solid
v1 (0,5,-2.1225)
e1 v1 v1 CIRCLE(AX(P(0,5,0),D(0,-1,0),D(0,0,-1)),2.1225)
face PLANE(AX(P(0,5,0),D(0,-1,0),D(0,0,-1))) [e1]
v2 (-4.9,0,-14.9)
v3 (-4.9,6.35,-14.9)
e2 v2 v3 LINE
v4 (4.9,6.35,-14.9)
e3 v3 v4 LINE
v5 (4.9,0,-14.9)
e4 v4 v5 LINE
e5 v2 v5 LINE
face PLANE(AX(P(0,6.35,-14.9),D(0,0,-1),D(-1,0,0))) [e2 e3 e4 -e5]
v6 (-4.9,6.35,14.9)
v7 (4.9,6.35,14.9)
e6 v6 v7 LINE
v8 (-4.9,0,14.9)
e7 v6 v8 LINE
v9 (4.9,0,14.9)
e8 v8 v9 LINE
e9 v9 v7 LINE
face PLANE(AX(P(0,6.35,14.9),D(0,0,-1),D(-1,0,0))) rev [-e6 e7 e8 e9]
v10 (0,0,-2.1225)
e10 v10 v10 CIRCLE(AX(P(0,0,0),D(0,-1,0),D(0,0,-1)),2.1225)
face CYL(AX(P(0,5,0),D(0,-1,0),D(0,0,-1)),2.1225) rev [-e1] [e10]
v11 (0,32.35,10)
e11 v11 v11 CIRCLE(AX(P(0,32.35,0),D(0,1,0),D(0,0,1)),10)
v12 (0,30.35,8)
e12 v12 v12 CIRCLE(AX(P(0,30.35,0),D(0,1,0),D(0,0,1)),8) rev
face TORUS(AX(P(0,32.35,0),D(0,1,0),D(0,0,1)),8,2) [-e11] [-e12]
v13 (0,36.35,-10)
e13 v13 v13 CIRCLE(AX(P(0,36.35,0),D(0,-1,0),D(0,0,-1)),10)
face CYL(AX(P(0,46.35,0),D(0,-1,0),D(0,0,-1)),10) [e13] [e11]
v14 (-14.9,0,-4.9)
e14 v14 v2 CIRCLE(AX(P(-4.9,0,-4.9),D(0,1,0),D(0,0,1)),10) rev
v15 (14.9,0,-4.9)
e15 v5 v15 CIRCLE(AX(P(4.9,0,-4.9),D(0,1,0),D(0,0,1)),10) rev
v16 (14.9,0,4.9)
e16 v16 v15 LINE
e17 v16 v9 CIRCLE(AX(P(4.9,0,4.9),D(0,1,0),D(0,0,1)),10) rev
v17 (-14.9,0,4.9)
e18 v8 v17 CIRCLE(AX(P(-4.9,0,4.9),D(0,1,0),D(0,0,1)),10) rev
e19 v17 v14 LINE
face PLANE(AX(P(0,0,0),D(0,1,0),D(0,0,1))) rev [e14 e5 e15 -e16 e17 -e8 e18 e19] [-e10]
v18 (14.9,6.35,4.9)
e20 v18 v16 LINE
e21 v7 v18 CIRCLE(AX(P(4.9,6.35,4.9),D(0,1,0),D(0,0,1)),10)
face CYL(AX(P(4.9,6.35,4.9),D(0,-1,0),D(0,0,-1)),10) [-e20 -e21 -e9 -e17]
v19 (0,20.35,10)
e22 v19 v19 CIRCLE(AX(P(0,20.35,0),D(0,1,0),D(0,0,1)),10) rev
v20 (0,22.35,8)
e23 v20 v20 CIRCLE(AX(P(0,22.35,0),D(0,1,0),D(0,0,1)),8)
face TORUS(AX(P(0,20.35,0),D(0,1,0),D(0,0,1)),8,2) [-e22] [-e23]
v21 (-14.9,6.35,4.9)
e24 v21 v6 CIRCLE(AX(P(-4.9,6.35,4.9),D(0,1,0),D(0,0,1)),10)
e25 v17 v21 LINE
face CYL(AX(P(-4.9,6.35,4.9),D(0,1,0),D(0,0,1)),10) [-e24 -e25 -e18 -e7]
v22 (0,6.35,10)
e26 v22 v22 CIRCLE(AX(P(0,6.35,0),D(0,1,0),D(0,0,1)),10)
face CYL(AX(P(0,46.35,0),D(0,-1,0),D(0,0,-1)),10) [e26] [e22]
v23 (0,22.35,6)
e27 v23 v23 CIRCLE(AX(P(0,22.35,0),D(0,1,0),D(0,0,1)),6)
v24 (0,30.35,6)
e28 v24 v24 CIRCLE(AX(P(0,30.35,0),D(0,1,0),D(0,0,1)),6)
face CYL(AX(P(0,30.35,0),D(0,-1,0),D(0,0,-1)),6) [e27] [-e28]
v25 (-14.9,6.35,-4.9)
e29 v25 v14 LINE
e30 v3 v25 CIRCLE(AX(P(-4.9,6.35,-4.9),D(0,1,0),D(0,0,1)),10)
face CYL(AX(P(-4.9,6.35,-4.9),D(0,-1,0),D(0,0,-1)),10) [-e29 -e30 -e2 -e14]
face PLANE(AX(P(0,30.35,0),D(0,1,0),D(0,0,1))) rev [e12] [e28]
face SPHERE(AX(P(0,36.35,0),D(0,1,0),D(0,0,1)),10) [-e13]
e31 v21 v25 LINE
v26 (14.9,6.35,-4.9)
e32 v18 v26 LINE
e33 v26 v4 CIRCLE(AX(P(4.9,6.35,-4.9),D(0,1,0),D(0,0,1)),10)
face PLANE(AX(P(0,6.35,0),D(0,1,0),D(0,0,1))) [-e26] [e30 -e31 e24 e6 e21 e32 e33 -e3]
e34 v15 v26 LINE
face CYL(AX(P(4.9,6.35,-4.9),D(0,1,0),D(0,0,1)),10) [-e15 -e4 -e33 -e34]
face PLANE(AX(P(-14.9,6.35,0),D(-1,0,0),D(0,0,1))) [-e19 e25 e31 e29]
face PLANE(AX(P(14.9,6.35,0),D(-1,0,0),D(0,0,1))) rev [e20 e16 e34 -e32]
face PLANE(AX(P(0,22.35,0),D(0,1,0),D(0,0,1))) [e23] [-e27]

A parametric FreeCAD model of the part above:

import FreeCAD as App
import Part
import Sketcher
from FreeCAD import Vector


def edges_at(feature, points):
    """Names of the edges that pass closest to the given points."""
    edges = feature.Shape.Edges
    near = lambda p: min(range(len(edges)), key=lambda i: edges[i].distToShape(Part.Vertex(*p))[0])
    return sorted({f"Edge{near(p) + 1}" for p in points})

doc = App.newDocument("Part")
params = doc.addObject("Spreadsheet::Sheet", "Params")
for row, (alias, value) in enumerate([
    ("sketch1_width", "29.8 mm"),
    ("pad1_length", "6.35 mm"),
    ("fillet_radius", "10 mm"),
    ("sketch2_diameter", "20 mm"),
    ("pad2_length", "40 mm"),
    ("fillet2_radius", "10 mm"),
    ("sketch3_diameter", "20 mm"),
    ("sketch3_diameter2", "12 mm"),
    ("pocket1_length", "4 mm"),
    ("pocket1_length2", "4 mm"),
    ("fillet3_radius", "2 mm"),
    ("pocket2_length", "5 mm"),
], start=1):
    params.set(f"A{row}", alias)
    params.set(f"B{row}", "=" + value)
    params.setAlias(f"B{row}", alias)

body = doc.addObject("PartDesign::Body", "Body")

# Sketch on XZ plane
sketch1 = body.newObject("Sketcher::SketchObject", "Sketch")
sketch1.AttachmentSupport = (doc.getObject("XZ_Plane"), [""])
sketch1.MapMode = "FlatFace"
sketch1.addGeometry([
    Part.LineSegment(Vector(-15, -15, 0), Vector(-15, 15, 0)),
    Part.LineSegment(Vector(-15, 15, 0), Vector(15, 15, 0)),
    Part.LineSegment(Vector(15, 15, 0), Vector(15, -15, 0)),
    Part.LineSegment(Vector(15, -15, 0), Vector(-15, -15, 0)),
], False)
sketch1.addConstraint([
    Sketcher.Constraint("Coincident", 0, 2, 1, 1),
    Sketcher.Constraint("Coincident", 1, 2, 2, 1),
    Sketcher.Constraint("Coincident", 2, 2, 3, 1),
    Sketcher.Constraint("Coincident", 3, 2, 0, 1),
    Sketcher.Constraint("Vertical", 0),
    Sketcher.Constraint("Horizontal", 1),
    Sketcher.Constraint("Vertical", 2),
    Sketcher.Constraint("Horizontal", 3),
    Sketcher.Constraint("Symmetric", 0, 2, 2, 2, -1, 1),
    Sketcher.Constraint("Equal", 3, 0),
    Sketcher.Constraint("DistanceX", 1, 1, 1, 2, 29.8),
])
sketch1.setExpression("Constraints[10]", "Params.sketch1_width")
pad1 = body.newObject("PartDesign::Pad", "Pad")
pad1.Profile = sketch1
pad1.setExpression("Length", "Params.pad1_length")
pad1.Reversed = True
doc.recompute()

fillet = body.newObject("PartDesign::Fillet", "Fillet")
fillet.Base = (pad1, edges_at(pad1, [
    (-14.9, 3.175, -14.9),
    (14.9, 3.175, -14.9),
    (14.9, 3.175, 14.9),
    (-14.9, 3.175, 14.9),
]))
fillet.setExpression("Radius", "Params.fillet_radius")

# Sketch on XZ plane
sketch2 = body.newObject("Sketcher::SketchObject", "Sketch001")
sketch2.AttachmentSupport = (doc.getObject("XZ_Plane"), [""])
sketch2.MapMode = "FlatFace"
sketch2.AttachmentOffset = App.Placement(Vector(0, 0, -6.35), App.Rotation())
sketch2.addGeometry(Part.Circle(Vector(0, 0, 0), Vector(0, 0, 1), 10), False)
sketch2.addConstraint([
    Sketcher.Constraint("Coincident", 0, 3, -1, 1),
    Sketcher.Constraint("Diameter", 0, 20.0),
])
sketch2.setExpression("Constraints[1]", "Params.sketch2_diameter")
pad2 = body.newObject("PartDesign::Pad", "Pad001")
pad2.Profile = sketch2
pad2.setExpression("Length", "Params.pad2_length")
pad2.Reversed = True
doc.recompute()

fillet2 = body.newObject("PartDesign::Fillet", "Fillet001")
fillet2.Base = (pad2, edges_at(pad2, [(0, 46.35, -10)]))
fillet2.setExpression("Radius", "Params.fillet2_radius")

# Sketch on XZ plane
sketch3 = body.newObject("Sketcher::SketchObject", "Sketch002")
sketch3.AttachmentSupport = (doc.getObject("XZ_Plane"), [""])
sketch3.MapMode = "FlatFace"
sketch3.AttachmentOffset = App.Placement(Vector(0, 0, -26.35), App.Rotation())
sketch3.addGeometry([
    Part.Circle(Vector(0, 0, 0), Vector(0, 0, 1), 10),
    Part.Circle(Vector(0, 0, 0), Vector(0, 0, 1), 6),
], False)
sketch3.addConstraint([
    Sketcher.Constraint("Coincident", 0, 3, -1, 1),
    Sketcher.Constraint("Coincident", 1, 3, -1, 1),
    Sketcher.Constraint("Diameter", 0, 20.0),
    Sketcher.Constraint("Diameter", 1, 12.0),
])
sketch3.setExpression("Constraints[2]", "Params.sketch3_diameter")
sketch3.setExpression("Constraints[3]", "Params.sketch3_diameter2")
pocket1 = body.newObject("PartDesign::Pocket", "Pocket")
pocket1.Profile = sketch3
pocket1.Type = "TwoLengths"
pocket1.setExpression("Length", "Params.pocket1_length")
pocket1.setExpression("Length2", "Params.pocket1_length2")
doc.recompute()

fillet3 = body.newObject("PartDesign::Fillet", "Fillet002")
fillet3.Base = (pocket1, edges_at(pocket1, [(0, 30.35, -10), (0, 22.35, -10)]))
fillet3.setExpression("Radius", "Params.fillet3_radius")

# Sketch on XZ plane
sketch4 = body.newObject("Sketcher::SketchObject", "Sketch003")
sketch4.AttachmentSupport = (doc.getObject("XZ_Plane"), [""])
sketch4.MapMode = "FlatFace"
sketch4.addGeometry(Part.Circle(Vector(0, 0, 0), Vector(0, 0, 1), 2.1), False)
sketch4.addConstraint([
    Sketcher.Constraint("Coincident", 0, 3, -1, 1),
    Sketcher.Constraint("Diameter", 0, 4.245),
])
pocket2 = body.newObject("PartDesign::Pocket", "Pocket001")
pocket2.Profile = sketch4
pocket2.setExpression("Length", "Params.pocket2_length")

doc.recompute()
